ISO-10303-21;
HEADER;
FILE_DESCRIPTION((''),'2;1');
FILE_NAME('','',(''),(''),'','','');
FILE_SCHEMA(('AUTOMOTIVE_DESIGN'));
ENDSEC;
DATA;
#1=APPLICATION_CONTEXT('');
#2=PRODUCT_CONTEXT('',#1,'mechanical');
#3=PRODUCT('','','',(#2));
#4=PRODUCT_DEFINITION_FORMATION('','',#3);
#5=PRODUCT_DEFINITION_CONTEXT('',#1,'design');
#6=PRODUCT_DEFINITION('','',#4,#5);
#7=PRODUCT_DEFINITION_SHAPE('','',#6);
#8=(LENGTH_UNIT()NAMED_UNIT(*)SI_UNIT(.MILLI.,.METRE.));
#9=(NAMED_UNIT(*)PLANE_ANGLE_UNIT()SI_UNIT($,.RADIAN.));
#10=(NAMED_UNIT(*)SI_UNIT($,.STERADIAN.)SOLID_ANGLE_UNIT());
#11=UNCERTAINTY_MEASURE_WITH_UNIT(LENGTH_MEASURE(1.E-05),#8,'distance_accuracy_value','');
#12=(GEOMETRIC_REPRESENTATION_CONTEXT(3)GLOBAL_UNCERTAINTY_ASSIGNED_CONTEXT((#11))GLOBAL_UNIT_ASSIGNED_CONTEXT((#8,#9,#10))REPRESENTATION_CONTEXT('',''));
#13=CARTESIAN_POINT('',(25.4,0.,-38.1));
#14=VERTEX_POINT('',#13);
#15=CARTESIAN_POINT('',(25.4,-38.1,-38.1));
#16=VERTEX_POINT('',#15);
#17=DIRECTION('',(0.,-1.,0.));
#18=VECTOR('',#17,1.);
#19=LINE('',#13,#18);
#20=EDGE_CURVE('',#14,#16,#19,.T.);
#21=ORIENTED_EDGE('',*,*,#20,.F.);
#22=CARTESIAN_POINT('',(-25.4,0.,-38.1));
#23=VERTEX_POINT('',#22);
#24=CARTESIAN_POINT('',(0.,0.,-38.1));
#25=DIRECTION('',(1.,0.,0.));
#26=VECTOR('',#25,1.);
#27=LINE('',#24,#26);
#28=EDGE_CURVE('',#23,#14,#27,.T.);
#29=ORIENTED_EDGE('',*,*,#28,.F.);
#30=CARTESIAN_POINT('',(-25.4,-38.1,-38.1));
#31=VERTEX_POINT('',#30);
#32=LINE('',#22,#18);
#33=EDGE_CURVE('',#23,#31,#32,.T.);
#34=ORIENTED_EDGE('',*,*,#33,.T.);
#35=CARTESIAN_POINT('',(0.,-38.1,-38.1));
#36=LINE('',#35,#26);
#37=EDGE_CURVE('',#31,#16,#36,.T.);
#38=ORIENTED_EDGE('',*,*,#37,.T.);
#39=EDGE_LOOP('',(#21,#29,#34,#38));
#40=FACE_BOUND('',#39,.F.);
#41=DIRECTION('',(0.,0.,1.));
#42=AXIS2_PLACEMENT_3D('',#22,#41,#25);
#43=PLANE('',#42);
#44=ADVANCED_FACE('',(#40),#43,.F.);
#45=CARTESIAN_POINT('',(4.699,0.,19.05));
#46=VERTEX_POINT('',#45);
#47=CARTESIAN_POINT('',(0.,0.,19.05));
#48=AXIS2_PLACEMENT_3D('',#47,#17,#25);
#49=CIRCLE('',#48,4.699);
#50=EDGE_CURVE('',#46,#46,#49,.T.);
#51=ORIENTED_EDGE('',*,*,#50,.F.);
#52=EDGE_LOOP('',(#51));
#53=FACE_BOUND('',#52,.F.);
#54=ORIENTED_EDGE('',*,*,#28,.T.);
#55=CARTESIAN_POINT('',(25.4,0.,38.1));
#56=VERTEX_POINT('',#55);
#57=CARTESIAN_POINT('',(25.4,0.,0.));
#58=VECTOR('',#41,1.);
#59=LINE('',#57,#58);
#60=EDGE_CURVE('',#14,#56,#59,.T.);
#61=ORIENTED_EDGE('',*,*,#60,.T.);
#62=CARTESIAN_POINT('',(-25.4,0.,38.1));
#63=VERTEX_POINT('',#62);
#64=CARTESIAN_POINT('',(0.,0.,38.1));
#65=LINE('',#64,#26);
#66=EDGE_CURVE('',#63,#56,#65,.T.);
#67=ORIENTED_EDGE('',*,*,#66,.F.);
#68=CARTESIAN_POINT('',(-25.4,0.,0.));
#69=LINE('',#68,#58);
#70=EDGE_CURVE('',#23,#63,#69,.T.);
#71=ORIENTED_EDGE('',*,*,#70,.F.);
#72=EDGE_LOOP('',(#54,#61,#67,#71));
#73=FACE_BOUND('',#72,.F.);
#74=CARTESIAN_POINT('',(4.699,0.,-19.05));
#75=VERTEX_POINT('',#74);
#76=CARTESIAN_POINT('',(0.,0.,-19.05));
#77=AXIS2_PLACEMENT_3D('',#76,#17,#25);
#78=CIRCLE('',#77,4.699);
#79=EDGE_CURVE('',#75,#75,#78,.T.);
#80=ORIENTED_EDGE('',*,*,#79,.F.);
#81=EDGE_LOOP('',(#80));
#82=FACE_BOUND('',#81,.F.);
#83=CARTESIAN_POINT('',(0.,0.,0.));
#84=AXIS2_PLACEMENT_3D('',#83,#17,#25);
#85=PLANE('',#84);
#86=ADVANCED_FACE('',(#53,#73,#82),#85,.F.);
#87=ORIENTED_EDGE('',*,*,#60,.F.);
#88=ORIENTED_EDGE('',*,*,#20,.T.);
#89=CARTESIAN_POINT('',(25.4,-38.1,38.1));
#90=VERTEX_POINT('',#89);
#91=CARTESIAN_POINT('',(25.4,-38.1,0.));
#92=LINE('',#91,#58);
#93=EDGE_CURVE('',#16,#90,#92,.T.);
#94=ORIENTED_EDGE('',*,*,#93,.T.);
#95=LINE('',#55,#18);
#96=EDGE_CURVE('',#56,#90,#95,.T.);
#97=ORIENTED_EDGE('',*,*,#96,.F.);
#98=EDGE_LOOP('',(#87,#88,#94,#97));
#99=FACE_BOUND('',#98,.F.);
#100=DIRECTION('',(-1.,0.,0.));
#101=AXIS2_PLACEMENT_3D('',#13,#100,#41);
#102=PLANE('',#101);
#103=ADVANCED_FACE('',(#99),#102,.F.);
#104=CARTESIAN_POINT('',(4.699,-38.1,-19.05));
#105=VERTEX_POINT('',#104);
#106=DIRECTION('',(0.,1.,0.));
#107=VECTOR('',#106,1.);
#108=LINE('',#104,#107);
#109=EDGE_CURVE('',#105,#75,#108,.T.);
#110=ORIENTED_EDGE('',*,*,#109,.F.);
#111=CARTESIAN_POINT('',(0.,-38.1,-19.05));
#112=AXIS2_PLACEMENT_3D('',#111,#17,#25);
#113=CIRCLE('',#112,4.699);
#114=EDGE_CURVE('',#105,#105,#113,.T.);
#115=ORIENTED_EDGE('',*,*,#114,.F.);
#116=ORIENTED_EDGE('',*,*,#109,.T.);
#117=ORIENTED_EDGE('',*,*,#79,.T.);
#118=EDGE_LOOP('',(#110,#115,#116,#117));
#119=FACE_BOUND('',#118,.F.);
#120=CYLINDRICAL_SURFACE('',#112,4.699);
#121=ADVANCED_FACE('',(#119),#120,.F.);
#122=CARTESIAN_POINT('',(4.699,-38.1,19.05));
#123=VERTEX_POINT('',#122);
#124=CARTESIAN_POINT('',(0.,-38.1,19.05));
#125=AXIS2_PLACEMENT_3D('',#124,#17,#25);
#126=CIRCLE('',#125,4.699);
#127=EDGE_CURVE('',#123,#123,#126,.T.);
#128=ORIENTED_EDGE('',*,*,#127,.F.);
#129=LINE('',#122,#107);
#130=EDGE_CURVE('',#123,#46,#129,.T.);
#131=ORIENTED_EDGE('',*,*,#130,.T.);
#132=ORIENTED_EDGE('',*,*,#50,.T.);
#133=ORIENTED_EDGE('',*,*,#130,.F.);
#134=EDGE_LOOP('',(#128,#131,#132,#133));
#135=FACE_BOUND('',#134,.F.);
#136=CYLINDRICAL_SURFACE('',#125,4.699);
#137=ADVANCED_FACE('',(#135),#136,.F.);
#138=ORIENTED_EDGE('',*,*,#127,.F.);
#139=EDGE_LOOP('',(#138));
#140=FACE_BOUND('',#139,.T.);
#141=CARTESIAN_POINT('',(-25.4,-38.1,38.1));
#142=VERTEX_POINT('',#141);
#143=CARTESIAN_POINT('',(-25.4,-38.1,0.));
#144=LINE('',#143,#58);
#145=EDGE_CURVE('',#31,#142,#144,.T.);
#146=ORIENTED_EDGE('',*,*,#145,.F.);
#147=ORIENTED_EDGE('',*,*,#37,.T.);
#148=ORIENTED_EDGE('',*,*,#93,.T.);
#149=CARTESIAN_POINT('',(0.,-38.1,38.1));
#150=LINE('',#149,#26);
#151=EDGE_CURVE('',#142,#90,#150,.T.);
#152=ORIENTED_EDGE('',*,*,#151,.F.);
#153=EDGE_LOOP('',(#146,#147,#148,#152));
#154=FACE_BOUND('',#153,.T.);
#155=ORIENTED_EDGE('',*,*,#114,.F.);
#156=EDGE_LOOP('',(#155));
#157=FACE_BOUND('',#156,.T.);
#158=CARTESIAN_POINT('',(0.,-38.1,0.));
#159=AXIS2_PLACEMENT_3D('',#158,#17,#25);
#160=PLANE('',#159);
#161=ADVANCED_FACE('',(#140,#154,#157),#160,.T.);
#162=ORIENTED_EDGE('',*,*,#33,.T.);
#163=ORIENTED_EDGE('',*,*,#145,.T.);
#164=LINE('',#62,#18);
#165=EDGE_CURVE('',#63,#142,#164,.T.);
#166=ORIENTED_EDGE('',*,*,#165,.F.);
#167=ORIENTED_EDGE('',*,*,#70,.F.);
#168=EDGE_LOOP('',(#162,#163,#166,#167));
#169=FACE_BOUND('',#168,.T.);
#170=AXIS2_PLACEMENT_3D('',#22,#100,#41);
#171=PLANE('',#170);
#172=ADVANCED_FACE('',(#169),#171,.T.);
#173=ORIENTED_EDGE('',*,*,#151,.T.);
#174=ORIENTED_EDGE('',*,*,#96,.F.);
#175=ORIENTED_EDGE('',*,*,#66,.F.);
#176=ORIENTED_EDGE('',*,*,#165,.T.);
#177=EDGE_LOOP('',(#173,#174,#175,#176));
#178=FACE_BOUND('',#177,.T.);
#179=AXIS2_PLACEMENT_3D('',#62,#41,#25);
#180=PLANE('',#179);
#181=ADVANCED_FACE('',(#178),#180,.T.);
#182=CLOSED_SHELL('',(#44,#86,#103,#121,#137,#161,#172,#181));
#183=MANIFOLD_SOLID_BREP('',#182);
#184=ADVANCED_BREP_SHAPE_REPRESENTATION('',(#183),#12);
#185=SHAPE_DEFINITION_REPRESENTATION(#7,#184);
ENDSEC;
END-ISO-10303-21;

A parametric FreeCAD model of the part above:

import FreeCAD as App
import Part
import Sketcher
from FreeCAD import Vector
Q = App.Units.Quantity


def add_polygon(sketch, points):
    """Adds a closed chain of lines whose ends are joined by coincident constraints."""
    first, n = sketch.GeometryCount, len(points)
    for a, b in zip(points, points[1:] + points[:1]):
        sketch.addGeometry(Part.LineSegment(App.Vector(*a, 0), App.Vector(*b, 0)), False)
    for i in range(n):
        sketch.addConstraint(Sketcher.Constraint("Coincident", first + i, 2, first + (i + 1) % n, 1))

doc = App.newDocument("Part")
body = doc.addObject("PartDesign::Body", "Body")

sketch1 = body.newObject("Sketcher::SketchObject", "Sketch")
sketch1.AttachmentSupport = (doc.getObject("XZ_Plane"), [""])
sketch1.MapMode = "FlatFace"
add_polygon(sketch1, [(-25, 38), (-25, -38), (25, -38), (25, 38)])
sketch1.addConstraint(Sketcher.Constraint("Vertical", 0))
sketch1.addConstraint(Sketcher.Constraint("Horizontal", 1))
sketch1.addConstraint(Sketcher.Constraint("Vertical", 2))
sketch1.addConstraint(Sketcher.Constraint("Horizontal", 3))
sketch1.addConstraint(Sketcher.Constraint("Symmetric", 0, 2, 2, 2, -1, 1))
sketch1.addConstraint(Sketcher.Constraint("DistanceX", 1, 1, 1, 2, Q("2 in")))
sketch1.addConstraint(Sketcher.Constraint("DistanceY", 0, 2, 0, 1, Q("3 in")))
pad1 = body.newObject("PartDesign::Pad", "Pad")
pad1.Profile = sketch1
pad1.Length = Q("1.5 in")

sketch2 = body.newObject("Sketcher::SketchObject", "Sketch001")
sketch2.AttachmentSupport = (doc.getObject("XZ_Plane"), [""])
sketch2.MapMode = "FlatFace"
sketch2.AttachmentOffset = App.Placement(Vector(0, 0, 1.5 * 25.4), App.Rotation())
sketch2.addGeometry(Part.Circle(Vector(0, 19.1, 0), Vector(0, 0, 1), 4.7), False)
sketch2.addGeometry(Part.Circle(Vector(0, -19.1, 0), Vector(0, 0, 1), 4.7), False)
sketch2.addConstraint(Sketcher.Constraint("Equal", 0, 1))
sketch2.addConstraint(Sketcher.Constraint("Symmetric", 0, 3, 1, 3, -1, 1))
sketch2.addConstraint(Sketcher.Constraint("PointOnObject", 0, 3, -2))
sketch2.addConstraint(Sketcher.Constraint("Diameter", 0, Q("0.37 in")))
sketch2.addConstraint(Sketcher.Constraint("DistanceY", 1, 3, 0, 3, Q("1.5 in")))
pocket1 = body.newObject("PartDesign::Pocket", "Pocket")
pocket1.Profile = sketch2
pocket1.Type = "ThroughAll"

doc.recompute()
